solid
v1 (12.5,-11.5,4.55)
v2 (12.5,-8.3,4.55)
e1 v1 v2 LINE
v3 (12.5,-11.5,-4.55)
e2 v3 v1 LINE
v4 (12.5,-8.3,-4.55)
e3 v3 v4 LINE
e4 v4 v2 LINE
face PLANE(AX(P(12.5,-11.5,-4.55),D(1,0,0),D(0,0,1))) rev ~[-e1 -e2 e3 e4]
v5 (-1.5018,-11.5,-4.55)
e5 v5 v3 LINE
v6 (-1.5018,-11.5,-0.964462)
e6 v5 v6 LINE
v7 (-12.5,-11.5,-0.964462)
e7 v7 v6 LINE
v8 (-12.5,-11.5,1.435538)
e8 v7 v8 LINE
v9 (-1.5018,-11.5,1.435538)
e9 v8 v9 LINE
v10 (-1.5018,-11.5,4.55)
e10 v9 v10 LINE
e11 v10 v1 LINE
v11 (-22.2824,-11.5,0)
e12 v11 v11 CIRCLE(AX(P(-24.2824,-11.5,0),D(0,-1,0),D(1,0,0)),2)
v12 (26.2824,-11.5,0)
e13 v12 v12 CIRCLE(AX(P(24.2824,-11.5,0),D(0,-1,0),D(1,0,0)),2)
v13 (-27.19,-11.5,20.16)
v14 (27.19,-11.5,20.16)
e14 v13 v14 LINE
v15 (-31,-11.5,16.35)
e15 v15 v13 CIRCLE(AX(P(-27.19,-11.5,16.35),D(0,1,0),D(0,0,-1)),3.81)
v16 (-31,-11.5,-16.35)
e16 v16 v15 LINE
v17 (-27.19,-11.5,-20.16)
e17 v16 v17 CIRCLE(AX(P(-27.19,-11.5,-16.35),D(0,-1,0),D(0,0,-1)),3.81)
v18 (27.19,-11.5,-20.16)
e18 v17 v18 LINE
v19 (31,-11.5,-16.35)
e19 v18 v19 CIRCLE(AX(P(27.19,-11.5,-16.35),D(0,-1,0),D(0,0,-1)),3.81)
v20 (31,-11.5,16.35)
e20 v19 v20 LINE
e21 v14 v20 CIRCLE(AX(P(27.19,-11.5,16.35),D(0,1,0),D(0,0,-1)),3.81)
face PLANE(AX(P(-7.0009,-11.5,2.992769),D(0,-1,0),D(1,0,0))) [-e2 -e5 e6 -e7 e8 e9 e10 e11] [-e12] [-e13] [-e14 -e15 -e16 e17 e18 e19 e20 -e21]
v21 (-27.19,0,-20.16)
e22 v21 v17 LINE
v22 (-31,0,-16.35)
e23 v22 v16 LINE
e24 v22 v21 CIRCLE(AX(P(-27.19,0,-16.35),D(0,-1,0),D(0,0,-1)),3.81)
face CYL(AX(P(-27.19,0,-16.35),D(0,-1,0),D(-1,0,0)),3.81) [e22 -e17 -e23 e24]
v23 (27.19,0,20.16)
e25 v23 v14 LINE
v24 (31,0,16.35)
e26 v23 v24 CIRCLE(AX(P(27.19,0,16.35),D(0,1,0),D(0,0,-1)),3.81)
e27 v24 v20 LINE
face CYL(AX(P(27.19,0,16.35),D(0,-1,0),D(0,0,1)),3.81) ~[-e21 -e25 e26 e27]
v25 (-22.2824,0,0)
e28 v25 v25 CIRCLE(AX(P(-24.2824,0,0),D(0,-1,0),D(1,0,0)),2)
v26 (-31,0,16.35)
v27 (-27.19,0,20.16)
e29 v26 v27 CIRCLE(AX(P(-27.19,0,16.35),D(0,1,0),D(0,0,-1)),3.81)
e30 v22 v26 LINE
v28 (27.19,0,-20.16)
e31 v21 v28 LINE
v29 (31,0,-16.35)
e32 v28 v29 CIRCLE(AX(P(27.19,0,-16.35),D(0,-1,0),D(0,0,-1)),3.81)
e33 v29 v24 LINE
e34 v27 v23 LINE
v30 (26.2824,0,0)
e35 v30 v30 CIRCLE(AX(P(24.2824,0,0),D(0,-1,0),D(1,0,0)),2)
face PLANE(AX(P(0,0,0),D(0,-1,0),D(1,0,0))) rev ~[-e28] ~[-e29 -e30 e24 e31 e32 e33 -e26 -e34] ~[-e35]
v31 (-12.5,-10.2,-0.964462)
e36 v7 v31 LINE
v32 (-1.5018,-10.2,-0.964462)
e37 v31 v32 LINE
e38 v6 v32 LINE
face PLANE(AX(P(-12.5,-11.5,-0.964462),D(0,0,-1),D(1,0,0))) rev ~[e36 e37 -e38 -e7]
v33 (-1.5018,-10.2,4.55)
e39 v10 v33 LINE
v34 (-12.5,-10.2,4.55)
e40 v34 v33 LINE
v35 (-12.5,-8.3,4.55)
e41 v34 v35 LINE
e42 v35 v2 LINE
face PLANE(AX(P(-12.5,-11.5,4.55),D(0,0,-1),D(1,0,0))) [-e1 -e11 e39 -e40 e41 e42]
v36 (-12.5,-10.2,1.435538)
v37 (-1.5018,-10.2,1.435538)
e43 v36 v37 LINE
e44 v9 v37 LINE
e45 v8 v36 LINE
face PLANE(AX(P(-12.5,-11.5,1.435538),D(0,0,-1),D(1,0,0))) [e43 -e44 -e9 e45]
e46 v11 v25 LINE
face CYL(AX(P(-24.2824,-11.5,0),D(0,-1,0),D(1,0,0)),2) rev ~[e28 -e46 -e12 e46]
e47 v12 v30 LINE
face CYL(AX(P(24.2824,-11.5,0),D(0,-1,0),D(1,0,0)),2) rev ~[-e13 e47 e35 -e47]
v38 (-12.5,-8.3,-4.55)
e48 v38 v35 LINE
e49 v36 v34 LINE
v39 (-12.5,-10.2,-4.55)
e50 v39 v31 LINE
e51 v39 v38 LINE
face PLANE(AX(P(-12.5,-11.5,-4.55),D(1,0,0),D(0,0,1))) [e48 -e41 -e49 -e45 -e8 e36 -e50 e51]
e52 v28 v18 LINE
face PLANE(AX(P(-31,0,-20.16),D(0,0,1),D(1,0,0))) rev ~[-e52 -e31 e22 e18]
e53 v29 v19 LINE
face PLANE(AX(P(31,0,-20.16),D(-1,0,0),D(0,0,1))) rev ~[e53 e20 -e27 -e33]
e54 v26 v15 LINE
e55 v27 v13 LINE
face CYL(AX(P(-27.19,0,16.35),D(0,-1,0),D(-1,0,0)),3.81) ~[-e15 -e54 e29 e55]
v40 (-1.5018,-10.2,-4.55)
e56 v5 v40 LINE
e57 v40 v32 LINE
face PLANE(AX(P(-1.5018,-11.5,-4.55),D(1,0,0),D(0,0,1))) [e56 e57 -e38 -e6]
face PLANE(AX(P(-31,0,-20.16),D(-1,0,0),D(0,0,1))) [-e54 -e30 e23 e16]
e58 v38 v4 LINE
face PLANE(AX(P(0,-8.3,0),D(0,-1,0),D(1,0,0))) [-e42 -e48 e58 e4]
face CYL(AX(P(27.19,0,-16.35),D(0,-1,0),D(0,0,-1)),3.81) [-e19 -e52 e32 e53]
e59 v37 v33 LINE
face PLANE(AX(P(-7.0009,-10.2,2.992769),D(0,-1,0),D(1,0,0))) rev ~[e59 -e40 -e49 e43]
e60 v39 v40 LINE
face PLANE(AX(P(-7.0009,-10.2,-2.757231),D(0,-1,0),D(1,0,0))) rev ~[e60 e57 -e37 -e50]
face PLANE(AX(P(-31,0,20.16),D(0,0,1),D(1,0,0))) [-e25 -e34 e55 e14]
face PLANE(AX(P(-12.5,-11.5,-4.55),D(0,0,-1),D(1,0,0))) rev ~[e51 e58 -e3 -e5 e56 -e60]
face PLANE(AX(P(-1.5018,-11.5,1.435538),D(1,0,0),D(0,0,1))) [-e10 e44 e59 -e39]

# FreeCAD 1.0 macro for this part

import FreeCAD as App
import Part
import Sketcher

V = App.Vector


def edges_at(feature, points):
    """Names of the edges that pass closest to the given points."""
    edges = feature.Shape.Edges
    near = lambda p: min(range(len(edges)), key=lambda i: edges[i].distToShape(Part.Vertex(*p))[0])
    return sorted({f"Edge{near(p) + 1}" for p in points})


def add_polygon(sketch, points):
    """Adds a closed chain of lines whose ends are joined by coincident constraints."""
    first, n = sketch.GeometryCount, len(points)
    for a, b in zip(points, points[1:] + points[:1]):
        sketch.addGeometry(Part.LineSegment(App.Vector(*a, 0), App.Vector(*b, 0)), False)
    for i in range(n):
        sketch.addConstraint(Sketcher.Constraint("Coincident", first + i, 2, first + (i + 1) % n, 1))

doc = App.newDocument("Part")
body = doc.addObject("PartDesign::Body", "Body")

# Sketch on XZ plane
sketch1 = body.newObject("Sketcher::SketchObject", "Sketch")
sketch1.AttachmentSupport = (doc.getObject("XZ_Plane"), [""])
sketch1.MapMode = "FlatFace"
add_polygon(sketch1, [(-31, 20.16), (-31, -20.16), (31, -20.16), (31, 20.16)])  # lines 0-3
sketch1.addConstraint([
    Sketcher.Constraint("Vertical", 0),
    Sketcher.Constraint("Horizontal", 1),
    Sketcher.Constraint("Vertical", 2),
    Sketcher.Constraint("Horizontal", 3),
    Sketcher.Constraint("Symmetric", 0, 2, 2, 2, -1, 1),
    Sketcher.Constraint("DistanceX", 1, 1, 1, 2, 62.0),
    Sketcher.Constraint("DistanceY", 0, 2, 0, 1, 40.32),
])
pad1 = body.newObject("PartDesign::Pad", "Pad")
pad1.Profile = sketch1
pad1.Length = 11.5

# Sketch on XZ plane
sketch2 = body.newObject("Sketcher::SketchObject", "Sketch001")
sketch2.AttachmentSupport = (doc.getObject("XZ_Plane"), [""])
sketch2.MapMode = "FlatFace"
sketch2.AttachmentOffset = App.Placement(V(0, 0, 11.5), App.Rotation())
add_polygon(sketch2, [(-12.5, 4.55), (-12.5, -4.55), (12.5, -4.55), (12.5, 4.55)])  # lines 0-3
sketch2.addConstraint([
    Sketcher.Constraint("Vertical", 0),
    Sketcher.Constraint("Horizontal", 1),
    Sketcher.Constraint("Vertical", 2),
    Sketcher.Constraint("Horizontal", 3),
    Sketcher.Constraint("Symmetric", 0, 2, 2, 2, -1, 1),
    Sketcher.Constraint("DistanceX", 1, 1, 1, 2, 25.0),
    Sketcher.Constraint("DistanceY", 0, 2, 0, 1, 9.1),
])
pocket1 = body.newObject("PartDesign::Pocket", "Pocket")
pocket1.Profile = sketch2
pocket1.Length = 3.2

# Sketch on XZ plane
sketch3 = body.newObject("Sketcher::SketchObject", "Sketch002")
sketch3.AttachmentSupport = (doc.getObject("XZ_Plane"), [""])
sketch3.MapMode = "FlatFace"
sketch3.AttachmentOffset = App.Placement(V(0, 0, 11.5), App.Rotation())
add_polygon(sketch3, [(-12.5, 4.55), (-12.5, 1.435538), (-1.5018, 1.435538), (-1.5018, 4.55)])  # lines 0-3
add_polygon(sketch3, [(-12.5, -0.964462), (-12.5, -4.55), (-1.5018, -4.55), (-1.5018, -0.964462)])  # lines 4-7
sketch3.addConstraint([
    Sketcher.Constraint("Vertical", 0),
    Sketcher.Constraint("Horizontal", 1),
    Sketcher.Constraint("Vertical", 2),
    Sketcher.Constraint("Horizontal", 3),
    Sketcher.Constraint("Vertical", 4),
    Sketcher.Constraint("Horizontal", 5),
    Sketcher.Constraint("Vertical", 6),
    Sketcher.Constraint("Horizontal", 7),
    Sketcher.Constraint("Symmetric", 3, 2, 4, 2, -1),
    Sketcher.Constraint("Vertical", 2, 2, 5, 2),
    Sketcher.Constraint("DistanceX", 0, 2, -1, 1, 12.5),
    Sketcher.Constraint("DistanceY", 4, 2, 3, 2, 9.1),
    Sketcher.Constraint("DistanceY", 6, 2, 1, 2, 2.4),
    Sketcher.Constraint("DistanceX", 1, 1, 1, 2, 10.9982),
    Sketcher.Constraint("DistanceY", 0, 2, 0, 1, 3.114462),
])
pad2 = body.newObject("PartDesign::Pad", "Pad001")
pad2.Profile = sketch3
pad2.Length = 1.3
pad2.Reversed = True
doc.recompute()

fillet = body.newObject("PartDesign::Fillet", "Fillet")
fillet.Base = (pad2, edges_at(pad2, [
    (-31, -5.75, 20.16),
    (31, -5.75, 20.16),
    (31, -5.75, -20.16),
    (-31, -5.75, -20.16),
]))
fillet.Radius = 3.81

# Sketch on XZ plane
sketch4 = body.newObject("Sketcher::SketchObject", "Sketch003")
sketch4.AttachmentSupport = (doc.getObject("XZ_Plane"), [""])
sketch4.MapMode = "FlatFace"
sketch4.AttachmentOffset = App.Placement(V(0, 0, 11.5), App.Rotation())
sketch4.addGeometry([
    Part.Circle(V(-24.2824, 0, 0), V(0, 0, 1), 2),
    Part.Circle(V(24.2824, 0, 0), V(0, 0, 1), 2),
], False)
sketch4.addConstraint([
    Sketcher.Constraint("Equal", 0, 1),
    Sketcher.Constraint("Symmetric", 0, 3, 1, 3, -1, 1),
    Sketcher.Constraint("PointOnObject", 0, 3, -1),
    Sketcher.Constraint("Diameter", 0, 4.0),
    Sketcher.Constraint("DistanceX", 0, 3, -1, 1, 24.2824),
])
pocket2 = body.newObject("PartDesign::Pocket", "Pocket001")
pocket2.Profile = sketch4
pocket2.Length = 15.24

doc.recompute()
